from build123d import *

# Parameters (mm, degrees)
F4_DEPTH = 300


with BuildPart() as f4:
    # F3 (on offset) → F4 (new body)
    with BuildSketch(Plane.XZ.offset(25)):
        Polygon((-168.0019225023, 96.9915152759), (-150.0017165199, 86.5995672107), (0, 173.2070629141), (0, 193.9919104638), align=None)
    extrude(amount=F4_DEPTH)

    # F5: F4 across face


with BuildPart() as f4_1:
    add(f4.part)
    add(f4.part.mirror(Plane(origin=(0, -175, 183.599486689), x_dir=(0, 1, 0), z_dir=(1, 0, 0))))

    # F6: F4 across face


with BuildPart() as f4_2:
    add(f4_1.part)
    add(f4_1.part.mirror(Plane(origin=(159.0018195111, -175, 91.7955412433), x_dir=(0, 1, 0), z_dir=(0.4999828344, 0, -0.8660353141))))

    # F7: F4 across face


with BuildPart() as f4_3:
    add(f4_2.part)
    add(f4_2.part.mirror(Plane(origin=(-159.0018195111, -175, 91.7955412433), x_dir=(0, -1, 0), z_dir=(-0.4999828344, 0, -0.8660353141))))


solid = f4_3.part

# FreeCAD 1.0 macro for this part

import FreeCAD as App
import Part
import Sketcher

V = App.Vector

doc = App.newDocument("Part")
params = doc.addObject("Spreadsheet::Sheet", "Params")
for row, (alias, value) in enumerate([
    ("pad1_length", "300 mm"),
], start=1):
    params.set(f"A{row}", alias)
    params.set(f"B{row}", "=" + value)
    params.setAlias(f"B{row}", alias)

body = doc.addObject("PartDesign::Body", "Body")

sketch1 = body.newObject("Sketcher::SketchObject", "Sketch")
sketch1.AttachmentSupport = (doc.getObject("XZ_Plane"), [""])
sketch1.MapMode = "FlatFace"
sketch1.AttachmentOffset = App.Placement(V(0, 0, 25), App.Rotation())
sketch1.addGeometry(Part.LineSegment(V(-168.001923, 96.991515, 0), V(-150.001717, 86.599567, 0)), False)
sketch1.addGeometry(Part.LineSegment(V(-150.001717, 86.599567, 0), V(0, 173.207063, 0)), False)
sketch1.addGeometry(Part.LineSegment(V(0, 173.207063, 0), V(0, 193.99191, 0)), False)
sketch1.addGeometry(Part.LineSegment(V(0, 193.99191, 0), V(-168.001923, 96.991515, 0)), False)
sketch1.addConstraint(Sketcher.Constraint("Coincident", 0, 2, 1, 1))
sketch1.addConstraint(Sketcher.Constraint("Coincident", 1, 2, 2, 1))
sketch1.addConstraint(Sketcher.Constraint("Coincident", 2, 2, 3, 1))
sketch1.addConstraint(Sketcher.Constraint("Coincident", 3, 2, 0, 1))
sketch1.addConstraint(Sketcher.Constraint("Vertical", 2))
sketch1.addConstraint(Sketcher.Constraint("PointOnObject", 1, 2, -2))
sketch1.addConstraint(Sketcher.Constraint("Parallel", 1, 3))
sketch1.addConstraint(Sketcher.Constraint("Distance", 0, 20.78461))
sketch1.addConstraint(Sketcher.Constraint("Distance", 3, 193.99413))
sketch1.addConstraint(Sketcher.Constraint("DistanceY", 2, 1, 2, 2, 20.784848))
sketch1.addConstraint(Sketcher.Constraint("DistanceY", -1, 1, 2, 2, 193.99191))
sketch1.addConstraint(Sketcher.Constraint("DistanceY", 0, 2, 3, 2, 10.391948))
pad1 = body.newObject("PartDesign::Pad", "Pad")
pad1.Profile = sketch1
pad1.setExpression("Length", "Params.pad1_length")
body2 = doc.addObject("PartDesign::Body", "Body001")
doc.recompute()

body2.BaseFeature = body
doc.recompute()

mirroring = doc.addObject("Part::Mirroring", "Mirroring")
mirroring.Source = body
mirroring.Base = V(0, -175, 183.599487)
mirroring.Normal = V(1, 0, 0)
body3 = doc.addObject("PartDesign::Body", "Body002")
body3.BaseFeature = mirroring
boolean = body2.newObject("PartDesign::Boolean", "Boolean")
boolean.Type = "Fuse"
boolean.addObjects([body3])
doc.recompute()
body4 = doc.addObject("PartDesign::Body", "Body003")
doc.recompute()

body4.BaseFeature = body2
doc.recompute()

mirroring2 = doc.addObject("Part::Mirroring", "Mirroring001")
mirroring2.Source = body2
mirroring2.Base = V(159.00182, -175, 91.795541)
mirroring2.Normal = V(0.499982834, 0, -0.866035314)
body5 = doc.addObject("PartDesign::Body", "Body004")
body5.BaseFeature = mirroring2
boolean2 = body4.newObject("PartDesign::Boolean", "Boolean001")
boolean2.Type = "Fuse"
boolean2.addObjects([body5])
doc.recompute()
body6 = doc.addObject("PartDesign::Body", "Body005")
doc.recompute()

body6.BaseFeature = body4
doc.recompute()

mirroring3 = doc.addObject("Part::Mirroring", "Mirroring002")
mirroring3.Source = body4
mirroring3.Base = V(-159.00182, -175, 91.795541)
mirroring3.Normal = V(-0.499982834, 0, -0.866035314)
body7 = doc.addObject("PartDesign::Body", "Body006")
body7.BaseFeature = mirroring3
boolean3 = body6.newObject("PartDesign::Boolean", "Boolean002")
boolean3.Type = "Fuse"
boolean3.addObjects([body7])
doc.recompute()
mirroring.Visibility = False
mirroring2.Visibility = False
mirroring3.Visibility = False

doc.recompute()
